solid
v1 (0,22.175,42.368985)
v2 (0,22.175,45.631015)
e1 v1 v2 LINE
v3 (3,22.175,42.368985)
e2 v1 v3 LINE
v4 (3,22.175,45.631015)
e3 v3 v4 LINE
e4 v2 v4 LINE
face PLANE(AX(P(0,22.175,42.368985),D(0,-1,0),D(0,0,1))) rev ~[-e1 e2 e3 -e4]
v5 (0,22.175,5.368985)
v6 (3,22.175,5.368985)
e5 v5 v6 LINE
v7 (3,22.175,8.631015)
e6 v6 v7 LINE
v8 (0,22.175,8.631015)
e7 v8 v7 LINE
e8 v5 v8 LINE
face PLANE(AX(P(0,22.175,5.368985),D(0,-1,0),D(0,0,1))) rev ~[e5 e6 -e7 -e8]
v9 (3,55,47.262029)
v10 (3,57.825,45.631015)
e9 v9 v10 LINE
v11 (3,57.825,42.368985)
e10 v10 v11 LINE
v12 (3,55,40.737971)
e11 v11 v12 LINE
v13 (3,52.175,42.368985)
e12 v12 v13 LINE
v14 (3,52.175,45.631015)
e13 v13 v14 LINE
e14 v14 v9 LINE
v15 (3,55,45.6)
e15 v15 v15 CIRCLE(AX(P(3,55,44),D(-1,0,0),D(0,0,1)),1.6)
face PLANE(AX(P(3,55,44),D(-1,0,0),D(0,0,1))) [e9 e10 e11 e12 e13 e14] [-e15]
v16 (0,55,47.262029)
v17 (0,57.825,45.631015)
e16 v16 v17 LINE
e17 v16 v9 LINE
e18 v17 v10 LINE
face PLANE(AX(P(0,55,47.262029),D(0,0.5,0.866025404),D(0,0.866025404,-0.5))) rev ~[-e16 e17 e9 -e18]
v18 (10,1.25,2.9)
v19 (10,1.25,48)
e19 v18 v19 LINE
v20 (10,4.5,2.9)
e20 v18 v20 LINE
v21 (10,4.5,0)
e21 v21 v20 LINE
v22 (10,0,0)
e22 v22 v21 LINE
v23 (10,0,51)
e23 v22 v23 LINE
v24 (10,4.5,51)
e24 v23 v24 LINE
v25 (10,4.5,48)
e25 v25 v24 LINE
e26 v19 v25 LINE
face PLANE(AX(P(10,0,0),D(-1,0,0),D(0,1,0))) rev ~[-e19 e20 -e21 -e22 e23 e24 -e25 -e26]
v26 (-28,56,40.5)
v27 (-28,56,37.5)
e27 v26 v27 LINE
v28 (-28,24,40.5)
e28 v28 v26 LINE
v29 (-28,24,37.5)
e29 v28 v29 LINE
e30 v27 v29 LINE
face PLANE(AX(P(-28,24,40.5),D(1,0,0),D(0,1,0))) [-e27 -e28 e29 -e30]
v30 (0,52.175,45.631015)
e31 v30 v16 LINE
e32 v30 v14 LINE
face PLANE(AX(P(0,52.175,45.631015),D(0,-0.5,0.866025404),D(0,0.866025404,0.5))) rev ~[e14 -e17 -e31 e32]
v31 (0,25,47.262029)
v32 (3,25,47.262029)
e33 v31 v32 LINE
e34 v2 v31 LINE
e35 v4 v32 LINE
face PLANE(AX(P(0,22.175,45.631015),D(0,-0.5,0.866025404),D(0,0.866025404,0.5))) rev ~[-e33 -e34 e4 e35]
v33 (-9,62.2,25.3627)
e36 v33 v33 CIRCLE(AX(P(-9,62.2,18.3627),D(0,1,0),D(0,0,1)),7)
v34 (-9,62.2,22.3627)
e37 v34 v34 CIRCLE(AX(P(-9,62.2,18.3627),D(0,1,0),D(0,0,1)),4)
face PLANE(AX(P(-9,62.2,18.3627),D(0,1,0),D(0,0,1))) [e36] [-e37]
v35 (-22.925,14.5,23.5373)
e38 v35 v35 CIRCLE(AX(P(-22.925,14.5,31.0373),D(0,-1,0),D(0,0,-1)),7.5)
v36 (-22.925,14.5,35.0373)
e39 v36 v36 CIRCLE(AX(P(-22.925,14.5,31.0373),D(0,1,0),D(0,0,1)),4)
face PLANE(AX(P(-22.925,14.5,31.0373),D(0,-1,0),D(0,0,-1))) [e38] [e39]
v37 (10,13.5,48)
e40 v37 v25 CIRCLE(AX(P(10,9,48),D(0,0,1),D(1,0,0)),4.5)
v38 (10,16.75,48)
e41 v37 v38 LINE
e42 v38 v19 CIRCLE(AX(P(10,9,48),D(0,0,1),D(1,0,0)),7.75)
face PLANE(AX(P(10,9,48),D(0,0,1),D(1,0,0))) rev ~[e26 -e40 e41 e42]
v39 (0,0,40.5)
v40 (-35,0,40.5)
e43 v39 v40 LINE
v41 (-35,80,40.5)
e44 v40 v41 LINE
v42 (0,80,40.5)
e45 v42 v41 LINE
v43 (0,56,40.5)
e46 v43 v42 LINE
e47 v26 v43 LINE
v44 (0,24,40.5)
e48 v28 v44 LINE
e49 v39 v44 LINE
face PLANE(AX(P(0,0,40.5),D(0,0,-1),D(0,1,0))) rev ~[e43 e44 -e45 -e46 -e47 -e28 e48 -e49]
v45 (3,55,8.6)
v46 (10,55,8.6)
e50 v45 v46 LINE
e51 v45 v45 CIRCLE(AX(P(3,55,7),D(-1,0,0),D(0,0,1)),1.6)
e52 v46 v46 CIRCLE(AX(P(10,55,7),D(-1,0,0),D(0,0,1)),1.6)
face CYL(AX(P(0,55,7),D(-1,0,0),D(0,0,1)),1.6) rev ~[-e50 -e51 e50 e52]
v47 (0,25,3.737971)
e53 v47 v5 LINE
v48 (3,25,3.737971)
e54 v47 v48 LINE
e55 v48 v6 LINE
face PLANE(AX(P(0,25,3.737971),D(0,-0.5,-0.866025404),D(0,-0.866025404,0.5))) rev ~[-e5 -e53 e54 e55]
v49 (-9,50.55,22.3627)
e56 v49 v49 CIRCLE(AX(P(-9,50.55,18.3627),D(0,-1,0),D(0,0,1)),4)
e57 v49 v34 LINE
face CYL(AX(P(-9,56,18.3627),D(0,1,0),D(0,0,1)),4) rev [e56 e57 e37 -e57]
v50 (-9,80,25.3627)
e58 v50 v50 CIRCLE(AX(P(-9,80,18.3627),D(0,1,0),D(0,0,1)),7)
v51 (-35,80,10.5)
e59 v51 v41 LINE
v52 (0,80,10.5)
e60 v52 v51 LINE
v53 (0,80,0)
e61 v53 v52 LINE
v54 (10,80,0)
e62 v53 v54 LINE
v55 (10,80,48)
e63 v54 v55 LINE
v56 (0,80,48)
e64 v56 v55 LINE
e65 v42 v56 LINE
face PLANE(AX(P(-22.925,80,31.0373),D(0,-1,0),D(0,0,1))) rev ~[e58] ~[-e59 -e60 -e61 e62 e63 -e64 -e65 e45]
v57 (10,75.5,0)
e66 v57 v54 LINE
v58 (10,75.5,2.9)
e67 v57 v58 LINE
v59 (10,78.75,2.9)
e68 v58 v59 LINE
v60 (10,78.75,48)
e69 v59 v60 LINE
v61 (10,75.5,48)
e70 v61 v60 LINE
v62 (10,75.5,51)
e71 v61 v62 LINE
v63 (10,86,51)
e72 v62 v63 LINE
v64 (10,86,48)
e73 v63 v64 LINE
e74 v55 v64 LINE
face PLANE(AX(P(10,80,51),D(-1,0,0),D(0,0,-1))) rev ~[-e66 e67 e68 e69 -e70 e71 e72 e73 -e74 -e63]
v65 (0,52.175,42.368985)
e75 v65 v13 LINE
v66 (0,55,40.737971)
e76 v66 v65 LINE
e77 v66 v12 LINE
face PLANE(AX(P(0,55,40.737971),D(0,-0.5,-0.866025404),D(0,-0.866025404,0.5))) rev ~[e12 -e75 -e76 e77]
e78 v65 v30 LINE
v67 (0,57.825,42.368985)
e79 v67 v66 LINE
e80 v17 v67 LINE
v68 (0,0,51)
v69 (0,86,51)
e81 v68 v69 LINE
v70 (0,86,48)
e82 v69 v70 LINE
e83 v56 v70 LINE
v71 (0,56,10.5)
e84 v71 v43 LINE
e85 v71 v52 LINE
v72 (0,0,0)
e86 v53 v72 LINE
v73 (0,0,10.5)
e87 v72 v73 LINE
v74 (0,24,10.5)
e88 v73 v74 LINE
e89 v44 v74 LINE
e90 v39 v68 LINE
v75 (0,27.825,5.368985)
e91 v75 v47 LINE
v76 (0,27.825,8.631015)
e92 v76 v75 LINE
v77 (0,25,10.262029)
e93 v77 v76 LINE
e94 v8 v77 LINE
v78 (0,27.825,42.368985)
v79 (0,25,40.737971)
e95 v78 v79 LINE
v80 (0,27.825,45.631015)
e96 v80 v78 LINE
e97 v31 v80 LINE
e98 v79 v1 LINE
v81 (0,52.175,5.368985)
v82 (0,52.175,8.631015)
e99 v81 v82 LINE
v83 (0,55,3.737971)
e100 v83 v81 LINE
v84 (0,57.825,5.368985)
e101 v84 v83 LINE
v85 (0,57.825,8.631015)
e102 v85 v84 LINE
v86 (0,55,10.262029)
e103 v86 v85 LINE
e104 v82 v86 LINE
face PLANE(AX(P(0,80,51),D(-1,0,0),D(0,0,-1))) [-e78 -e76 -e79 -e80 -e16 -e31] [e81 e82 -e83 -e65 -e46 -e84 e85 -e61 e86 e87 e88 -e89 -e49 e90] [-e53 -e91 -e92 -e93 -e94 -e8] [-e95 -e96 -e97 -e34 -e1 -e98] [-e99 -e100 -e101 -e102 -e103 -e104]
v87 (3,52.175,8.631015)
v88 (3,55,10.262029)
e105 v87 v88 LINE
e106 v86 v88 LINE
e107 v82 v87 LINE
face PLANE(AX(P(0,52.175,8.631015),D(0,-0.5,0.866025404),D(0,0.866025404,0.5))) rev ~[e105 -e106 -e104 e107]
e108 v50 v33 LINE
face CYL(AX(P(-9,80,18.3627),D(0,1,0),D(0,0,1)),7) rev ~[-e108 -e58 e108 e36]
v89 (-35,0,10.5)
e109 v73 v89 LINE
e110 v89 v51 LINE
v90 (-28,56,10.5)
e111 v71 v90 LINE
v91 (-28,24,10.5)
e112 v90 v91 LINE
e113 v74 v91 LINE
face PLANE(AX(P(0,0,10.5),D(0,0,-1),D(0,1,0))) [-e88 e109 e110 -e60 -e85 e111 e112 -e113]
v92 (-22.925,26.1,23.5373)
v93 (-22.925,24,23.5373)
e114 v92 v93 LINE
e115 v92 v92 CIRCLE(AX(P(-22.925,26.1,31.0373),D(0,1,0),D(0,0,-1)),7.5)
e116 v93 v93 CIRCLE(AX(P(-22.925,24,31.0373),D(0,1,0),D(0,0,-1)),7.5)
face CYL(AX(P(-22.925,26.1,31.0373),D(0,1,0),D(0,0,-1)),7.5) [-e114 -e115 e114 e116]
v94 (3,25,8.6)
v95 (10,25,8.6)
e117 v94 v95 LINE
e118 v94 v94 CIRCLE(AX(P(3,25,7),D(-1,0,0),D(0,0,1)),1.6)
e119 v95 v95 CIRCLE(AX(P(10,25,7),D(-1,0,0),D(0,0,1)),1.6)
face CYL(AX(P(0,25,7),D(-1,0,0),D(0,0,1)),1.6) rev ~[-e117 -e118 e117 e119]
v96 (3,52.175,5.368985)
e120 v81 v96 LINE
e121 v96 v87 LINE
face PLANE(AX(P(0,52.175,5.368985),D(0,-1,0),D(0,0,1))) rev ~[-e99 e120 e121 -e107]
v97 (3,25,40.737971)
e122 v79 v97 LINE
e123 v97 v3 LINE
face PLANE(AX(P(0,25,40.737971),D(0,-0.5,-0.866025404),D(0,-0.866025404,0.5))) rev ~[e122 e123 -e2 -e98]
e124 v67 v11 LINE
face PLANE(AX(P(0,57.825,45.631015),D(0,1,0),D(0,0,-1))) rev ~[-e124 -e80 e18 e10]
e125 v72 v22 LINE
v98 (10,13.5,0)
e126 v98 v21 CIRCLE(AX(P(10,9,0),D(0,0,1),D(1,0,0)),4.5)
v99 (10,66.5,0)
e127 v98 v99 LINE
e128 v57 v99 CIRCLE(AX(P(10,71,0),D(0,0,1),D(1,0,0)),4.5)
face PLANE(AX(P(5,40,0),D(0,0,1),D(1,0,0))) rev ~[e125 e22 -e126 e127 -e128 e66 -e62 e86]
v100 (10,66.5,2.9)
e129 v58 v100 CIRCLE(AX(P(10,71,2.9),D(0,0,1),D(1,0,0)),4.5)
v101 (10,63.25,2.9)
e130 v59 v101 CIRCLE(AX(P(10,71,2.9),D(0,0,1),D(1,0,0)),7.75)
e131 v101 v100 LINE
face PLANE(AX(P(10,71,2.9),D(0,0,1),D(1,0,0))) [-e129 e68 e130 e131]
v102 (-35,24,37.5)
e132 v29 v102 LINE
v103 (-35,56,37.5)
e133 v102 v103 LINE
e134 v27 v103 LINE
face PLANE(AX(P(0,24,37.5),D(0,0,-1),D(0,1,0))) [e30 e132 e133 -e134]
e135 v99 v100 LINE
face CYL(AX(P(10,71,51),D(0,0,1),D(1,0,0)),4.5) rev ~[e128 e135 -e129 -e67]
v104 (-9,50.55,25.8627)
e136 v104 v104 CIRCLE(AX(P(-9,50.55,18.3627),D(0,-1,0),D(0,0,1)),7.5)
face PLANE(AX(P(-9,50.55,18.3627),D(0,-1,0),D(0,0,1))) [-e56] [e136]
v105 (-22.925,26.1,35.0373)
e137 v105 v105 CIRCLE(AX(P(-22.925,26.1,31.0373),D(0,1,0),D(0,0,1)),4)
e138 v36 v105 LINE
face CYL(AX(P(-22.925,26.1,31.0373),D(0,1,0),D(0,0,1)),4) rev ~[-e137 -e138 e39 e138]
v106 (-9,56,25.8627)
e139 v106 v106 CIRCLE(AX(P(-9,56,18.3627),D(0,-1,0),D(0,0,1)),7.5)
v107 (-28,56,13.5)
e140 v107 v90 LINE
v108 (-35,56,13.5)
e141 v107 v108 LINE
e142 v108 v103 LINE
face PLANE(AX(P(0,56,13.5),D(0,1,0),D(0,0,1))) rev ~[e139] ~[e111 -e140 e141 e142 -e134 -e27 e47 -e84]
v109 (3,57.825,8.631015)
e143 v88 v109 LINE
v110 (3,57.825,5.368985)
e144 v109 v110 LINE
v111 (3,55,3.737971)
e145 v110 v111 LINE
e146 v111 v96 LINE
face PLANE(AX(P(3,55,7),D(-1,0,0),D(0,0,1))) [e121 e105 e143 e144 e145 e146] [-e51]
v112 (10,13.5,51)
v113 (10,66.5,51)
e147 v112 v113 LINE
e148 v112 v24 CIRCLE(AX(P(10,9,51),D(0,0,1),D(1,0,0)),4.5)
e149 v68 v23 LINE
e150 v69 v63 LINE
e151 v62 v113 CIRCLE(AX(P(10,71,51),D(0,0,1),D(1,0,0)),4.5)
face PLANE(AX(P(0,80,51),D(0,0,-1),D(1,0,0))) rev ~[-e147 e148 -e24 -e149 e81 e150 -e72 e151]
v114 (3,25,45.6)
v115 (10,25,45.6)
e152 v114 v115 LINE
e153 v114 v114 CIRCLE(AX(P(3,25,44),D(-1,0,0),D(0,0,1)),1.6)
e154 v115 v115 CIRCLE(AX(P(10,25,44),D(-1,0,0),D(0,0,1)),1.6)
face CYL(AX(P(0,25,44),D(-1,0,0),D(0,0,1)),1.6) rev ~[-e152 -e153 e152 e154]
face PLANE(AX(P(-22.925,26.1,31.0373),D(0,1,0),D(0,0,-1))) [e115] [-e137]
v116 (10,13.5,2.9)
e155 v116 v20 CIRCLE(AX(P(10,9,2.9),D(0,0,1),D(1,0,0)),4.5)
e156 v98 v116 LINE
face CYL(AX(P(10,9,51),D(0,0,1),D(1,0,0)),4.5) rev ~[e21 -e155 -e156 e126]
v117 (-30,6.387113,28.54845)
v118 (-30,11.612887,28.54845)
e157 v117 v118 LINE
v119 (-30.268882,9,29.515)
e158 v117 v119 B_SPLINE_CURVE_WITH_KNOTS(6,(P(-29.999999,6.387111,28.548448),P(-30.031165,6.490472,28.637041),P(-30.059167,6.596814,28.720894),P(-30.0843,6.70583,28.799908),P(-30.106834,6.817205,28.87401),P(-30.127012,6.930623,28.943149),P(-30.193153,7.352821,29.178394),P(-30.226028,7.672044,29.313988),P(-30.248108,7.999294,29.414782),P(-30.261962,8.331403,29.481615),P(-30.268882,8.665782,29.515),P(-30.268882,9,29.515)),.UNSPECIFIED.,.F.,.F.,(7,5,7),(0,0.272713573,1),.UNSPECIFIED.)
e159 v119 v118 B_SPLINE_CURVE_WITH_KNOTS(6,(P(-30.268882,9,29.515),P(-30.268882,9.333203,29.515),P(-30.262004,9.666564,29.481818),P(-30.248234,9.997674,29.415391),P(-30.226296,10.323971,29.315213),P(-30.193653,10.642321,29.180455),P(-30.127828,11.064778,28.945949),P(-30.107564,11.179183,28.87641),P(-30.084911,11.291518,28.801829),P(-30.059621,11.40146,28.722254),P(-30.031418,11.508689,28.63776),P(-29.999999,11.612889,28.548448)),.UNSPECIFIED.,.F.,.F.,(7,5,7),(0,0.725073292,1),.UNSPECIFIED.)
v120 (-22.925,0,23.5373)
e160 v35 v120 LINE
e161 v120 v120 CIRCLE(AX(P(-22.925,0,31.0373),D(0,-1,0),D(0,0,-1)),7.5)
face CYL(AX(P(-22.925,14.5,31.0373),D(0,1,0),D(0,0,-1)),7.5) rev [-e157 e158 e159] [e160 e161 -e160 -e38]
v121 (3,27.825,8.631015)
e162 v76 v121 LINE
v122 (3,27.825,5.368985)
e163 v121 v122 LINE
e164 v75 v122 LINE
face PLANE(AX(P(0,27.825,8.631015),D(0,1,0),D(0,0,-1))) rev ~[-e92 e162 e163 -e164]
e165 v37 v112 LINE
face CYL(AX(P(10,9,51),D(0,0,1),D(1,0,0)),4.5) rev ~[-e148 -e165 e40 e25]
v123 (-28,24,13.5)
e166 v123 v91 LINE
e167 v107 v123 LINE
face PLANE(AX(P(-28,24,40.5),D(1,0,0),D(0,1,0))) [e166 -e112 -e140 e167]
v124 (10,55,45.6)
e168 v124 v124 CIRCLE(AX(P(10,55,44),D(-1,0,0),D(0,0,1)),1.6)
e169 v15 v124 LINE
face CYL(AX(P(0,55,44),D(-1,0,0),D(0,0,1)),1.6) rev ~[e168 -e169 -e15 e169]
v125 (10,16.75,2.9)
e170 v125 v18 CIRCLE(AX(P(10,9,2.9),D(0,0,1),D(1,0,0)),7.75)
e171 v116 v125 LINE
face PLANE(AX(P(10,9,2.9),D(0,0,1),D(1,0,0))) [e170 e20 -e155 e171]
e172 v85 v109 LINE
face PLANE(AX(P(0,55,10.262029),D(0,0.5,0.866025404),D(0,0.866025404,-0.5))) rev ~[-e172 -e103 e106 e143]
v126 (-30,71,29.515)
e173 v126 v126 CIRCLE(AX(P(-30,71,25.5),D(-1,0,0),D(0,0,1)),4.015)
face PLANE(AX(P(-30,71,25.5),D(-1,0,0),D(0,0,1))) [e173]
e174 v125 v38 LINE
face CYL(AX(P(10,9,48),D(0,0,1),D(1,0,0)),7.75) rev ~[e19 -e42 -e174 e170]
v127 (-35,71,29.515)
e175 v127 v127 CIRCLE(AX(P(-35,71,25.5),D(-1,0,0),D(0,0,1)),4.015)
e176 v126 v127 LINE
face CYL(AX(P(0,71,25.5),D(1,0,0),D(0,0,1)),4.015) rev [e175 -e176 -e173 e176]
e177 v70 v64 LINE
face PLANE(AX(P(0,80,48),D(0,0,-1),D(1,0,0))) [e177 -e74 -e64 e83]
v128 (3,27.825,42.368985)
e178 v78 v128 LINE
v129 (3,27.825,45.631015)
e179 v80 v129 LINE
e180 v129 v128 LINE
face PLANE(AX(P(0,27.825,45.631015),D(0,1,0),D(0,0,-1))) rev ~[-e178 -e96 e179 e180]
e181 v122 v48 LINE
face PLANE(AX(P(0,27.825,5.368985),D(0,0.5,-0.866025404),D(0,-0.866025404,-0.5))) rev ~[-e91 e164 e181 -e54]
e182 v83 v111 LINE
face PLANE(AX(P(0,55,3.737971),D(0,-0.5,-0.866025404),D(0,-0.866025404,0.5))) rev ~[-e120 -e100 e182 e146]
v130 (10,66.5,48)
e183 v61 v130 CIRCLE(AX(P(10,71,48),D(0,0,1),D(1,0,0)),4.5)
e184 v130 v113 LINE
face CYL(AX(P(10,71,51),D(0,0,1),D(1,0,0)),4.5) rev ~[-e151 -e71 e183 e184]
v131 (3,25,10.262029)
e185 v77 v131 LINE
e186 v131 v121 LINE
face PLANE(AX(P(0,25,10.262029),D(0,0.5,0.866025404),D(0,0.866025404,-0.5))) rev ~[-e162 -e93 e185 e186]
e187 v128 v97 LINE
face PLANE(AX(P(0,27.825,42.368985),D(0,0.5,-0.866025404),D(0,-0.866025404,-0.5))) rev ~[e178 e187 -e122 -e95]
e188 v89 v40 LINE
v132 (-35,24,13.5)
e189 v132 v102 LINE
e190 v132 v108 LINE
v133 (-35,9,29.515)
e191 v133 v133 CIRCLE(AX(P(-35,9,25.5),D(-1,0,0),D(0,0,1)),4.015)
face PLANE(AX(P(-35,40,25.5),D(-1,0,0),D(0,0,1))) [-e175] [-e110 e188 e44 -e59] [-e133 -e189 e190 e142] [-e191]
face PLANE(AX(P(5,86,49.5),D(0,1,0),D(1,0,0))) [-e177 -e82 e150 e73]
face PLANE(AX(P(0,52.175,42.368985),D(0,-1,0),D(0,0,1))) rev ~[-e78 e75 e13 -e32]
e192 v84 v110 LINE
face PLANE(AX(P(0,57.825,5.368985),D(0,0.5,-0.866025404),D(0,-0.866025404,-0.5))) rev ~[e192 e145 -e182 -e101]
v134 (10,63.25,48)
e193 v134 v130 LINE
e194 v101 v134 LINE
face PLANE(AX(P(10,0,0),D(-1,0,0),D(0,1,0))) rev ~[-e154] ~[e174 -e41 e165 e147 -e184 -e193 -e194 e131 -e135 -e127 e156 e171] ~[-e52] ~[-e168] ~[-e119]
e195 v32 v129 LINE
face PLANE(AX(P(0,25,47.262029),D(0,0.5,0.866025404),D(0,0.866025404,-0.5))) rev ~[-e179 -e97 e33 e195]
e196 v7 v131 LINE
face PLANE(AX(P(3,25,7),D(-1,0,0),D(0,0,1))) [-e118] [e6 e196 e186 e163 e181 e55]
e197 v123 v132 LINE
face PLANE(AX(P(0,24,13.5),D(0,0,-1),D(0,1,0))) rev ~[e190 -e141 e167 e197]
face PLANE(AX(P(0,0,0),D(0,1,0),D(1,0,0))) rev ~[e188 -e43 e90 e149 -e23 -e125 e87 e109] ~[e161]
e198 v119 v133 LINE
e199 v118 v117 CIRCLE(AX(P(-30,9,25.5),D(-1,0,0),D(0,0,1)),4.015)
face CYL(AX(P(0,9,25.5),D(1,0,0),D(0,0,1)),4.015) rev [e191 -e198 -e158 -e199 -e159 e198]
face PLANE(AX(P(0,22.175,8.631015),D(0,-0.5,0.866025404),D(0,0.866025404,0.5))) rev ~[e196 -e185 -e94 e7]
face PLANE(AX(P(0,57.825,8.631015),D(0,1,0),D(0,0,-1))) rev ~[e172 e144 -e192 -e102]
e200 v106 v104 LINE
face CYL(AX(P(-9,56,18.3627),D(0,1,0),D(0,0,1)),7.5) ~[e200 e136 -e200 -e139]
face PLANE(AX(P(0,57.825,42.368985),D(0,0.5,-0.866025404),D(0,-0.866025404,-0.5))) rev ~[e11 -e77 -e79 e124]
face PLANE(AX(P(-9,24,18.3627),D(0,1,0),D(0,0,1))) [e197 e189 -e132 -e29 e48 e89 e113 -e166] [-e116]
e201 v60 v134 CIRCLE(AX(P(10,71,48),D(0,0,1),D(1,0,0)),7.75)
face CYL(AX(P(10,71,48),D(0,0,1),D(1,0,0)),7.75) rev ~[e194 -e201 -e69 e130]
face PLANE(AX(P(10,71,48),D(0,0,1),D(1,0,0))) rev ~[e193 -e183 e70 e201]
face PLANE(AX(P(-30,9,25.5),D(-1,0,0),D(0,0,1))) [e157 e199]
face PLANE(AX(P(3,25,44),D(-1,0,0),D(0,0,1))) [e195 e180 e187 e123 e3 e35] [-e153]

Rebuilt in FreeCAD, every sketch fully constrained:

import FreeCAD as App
import Part
import Sketcher
Q = App.Units.Quantity

doc = App.newDocument("Part")
body = doc.addObject("PartDesign::Body", "Body")

# Sketch on XY plane
sketch1 = doc.addObject("Sketcher::SketchObject", "Sketch")
body.addObject(sketch1)
sketch1.AttachmentSupport = (doc.XY_Plane, [""])
sketch1.MapMode = "FlatFace"
sketch1.addGeometry([
    Part.LineSegment(App.Vector(0, 80, 0), App.Vector(0, 0, 0)),
    Part.LineSegment(App.Vector(0, 0, 0), App.Vector(10, 0, 0)),
    Part.LineSegment(App.Vector(10, 0, 0), App.Vector(10, 80, 0)),
    Part.LineSegment(App.Vector(10, 80, 0), App.Vector(0, 80, 0)),
], False)
sketch1.addConstraint([
    Sketcher.Constraint("Coincident", 0, 2, 1, 1),
    Sketcher.Constraint("Coincident", 1, 2, 2, 1),
    Sketcher.Constraint("Coincident", 2, 2, 3, 1),
    Sketcher.Constraint("Coincident", 3, 2, 0, 1),
    Sketcher.Constraint("Vertical", 0),
    Sketcher.Constraint("Horizontal", 1),
    Sketcher.Constraint("Vertical", 2),
    Sketcher.Constraint("Horizontal", 3),
    Sketcher.Constraint("Coincident", 0, 2, -1, 1),
    Sketcher.Constraint("DistanceX", 1, 1, 1, 2, Q("10 mm")),
    Sketcher.Constraint("DistanceY", 0, 2, 0, 1, Q("80 mm")),
])
pad1 = doc.addObject("PartDesign::Pad", "Pad")
body.addObject(pad1)
pad1.Profile = sketch1
pad1.Length = 51

# Sketch on XY plane
sketch2 = doc.addObject("Sketcher::SketchObject", "Sketch001")
body.addObject(sketch2)
sketch2.AttachmentSupport = (doc.XY_Plane, [""])
sketch2.MapMode = "FlatFace"
sketch2.AttachmentOffset = App.Placement(App.Vector(0, 0, 48), App.Rotation())
sketch2.addGeometry([
    Part.Circle(App.Vector(10, 9, 0), App.Vector(0, 0, 1), 8),
    Part.Circle(App.Vector(10, 71, 0), App.Vector(0, 0, 1), 8),
], False)
sketch2.addConstraint([
    Sketcher.Constraint("Equal", 0, 1),
    Sketcher.Constraint("Vertical", 0, 3, 1, 3),
    Sketcher.Constraint("Diameter", 0, Q("15.5 mm")),
    Sketcher.Constraint("DistanceX", -1, 1, 0, 3, Q("10 mm")),
    Sketcher.Constraint("DistanceY", -1, 1, 0, 3, Q("9 mm")),
    Sketcher.Constraint("DistanceY", -1, 1, 1, 3, Q("71 mm")),
])
pocket1 = doc.addObject("PartDesign::Pocket", "Pocket")
body.addObject(pocket1)
pocket1.Profile = sketch2
pocket1.Length = 45.1

# Sketch on XY plane
sketch3 = doc.addObject("Sketcher::SketchObject", "Sketch002")
body.addObject(sketch3)
sketch3.AttachmentSupport = (doc.XY_Plane, [""])
sketch3.MapMode = "FlatFace"
sketch3.AttachmentOffset = App.Placement(App.Vector(0, 0, 51), App.Rotation())
sketch3.addGeometry([
    Part.Circle(App.Vector(10, 71, 0), App.Vector(0, 0, 1), 4.5),
    Part.Circle(App.Vector(10, 9, 0), App.Vector(0, 0, 1), 4.5),
], False)
sketch3.addConstraint([
    Sketcher.Constraint("Equal", 0, 1),
    Sketcher.Constraint("Vertical", 0, 3, 1, 3),
    Sketcher.Constraint("Diameter", 0, Q("9 mm")),
    Sketcher.Constraint("DistanceX", -1, 1, 0, 3, Q("10 mm")),
    Sketcher.Constraint("DistanceY", -1, 1, 0, 3, Q("71 mm")),
    Sketcher.Constraint("DistanceY", -1, 1, 1, 3, Q("9 mm")),
])
pocket2 = doc.addObject("PartDesign::Pocket", "Pocket001")
body.addObject(pocket2)
pocket2.Profile = sketch3
pocket2.Type = "ThroughAll"

# Sketch on YZ plane
sketch4 = doc.addObject("Sketcher::SketchObject", "Sketch003")
body.addObject(sketch4)
sketch4.AttachmentSupport = (doc.YZ_Plane, [""])
sketch4.MapMode = "FlatFace"
sketch4.addGeometry([
    Part.LineSegment(App.Vector(80, 10.5, 0), App.Vector(0, 10.5, 0)),  # 0
    Part.LineSegment(App.Vector(0, 10.5, 0), App.Vector(0, 40.5, 0)),  # 1
    Part.LineSegment(App.Vector(0, 40.5, 0), App.Vector(80, 40.5, 0)),  # 2
    Part.LineSegment(App.Vector(80, 40.5, 0), App.Vector(80, 10.5, 0)),  # 3
    Part.Circle(App.Vector(9, 25.5, 0), App.Vector(0, 0, 1), 4),  # 4
    Part.Circle(App.Vector(71, 25.5, 0), App.Vector(0, 0, 1), 4),  # 5
], False)
sketch4.addConstraint([
    Sketcher.Constraint("Coincident", 0, 2, 1, 1),
    Sketcher.Constraint("Coincident", 1, 2, 2, 1),
    Sketcher.Constraint("Coincident", 2, 2, 3, 1),
    Sketcher.Constraint("Coincident", 3, 2, 0, 1),
    Sketcher.Constraint("Horizontal", 0),
    Sketcher.Constraint("Vertical", 1),
    Sketcher.Constraint("Horizontal", 2),
    Sketcher.Constraint("Vertical", 3),
    Sketcher.Constraint("Equal", 4, 5),
    Sketcher.Constraint("PointOnObject", 0, 2, -2),
    Sketcher.Constraint("Horizontal", 4, 3, 5, 3),
    Sketcher.Constraint("Diameter", 4, Q("8.03 mm")),
    Sketcher.Constraint("DistanceX", 0, 2, 0, 1, Q("80 mm")),
    Sketcher.Constraint("DistanceY", 1, 1, 1, 2, Q("30 mm")),
    Sketcher.Constraint("DistanceX", -1, 1, 4, 3, Q("9 mm")),
    Sketcher.Constraint("DistanceX", -1, 1, 5, 3, Q("71 mm")),
    Sketcher.Constraint("DistanceY", 0, 2, 4, 3, Q("15 mm")),
    Sketcher.Constraint("DistanceY", -1, 1, 4, 3, Q("25.5 mm")),
])
pad2 = doc.addObject("PartDesign::Pad", "Pad001")
body.addObject(pad2)
pad2.Profile = sketch4
pad2.Length = 35
pad2.Reversed = True

# Sketch on YZ plane
sketch5 = doc.addObject("Sketcher::SketchObject", "Sketch004")
body.addObject(sketch5)
sketch5.AttachmentSupport = (doc.YZ_Plane, [""])
sketch5.MapMode = "FlatFace"
sketch5.addGeometry([
    Part.Circle(App.Vector(71, 25.5, 0), App.Vector(0, 0, 1), 4),
    Part.Circle(App.Vector(9, 25.5, 0), App.Vector(0, 0, 1), 4),
], False)
sketch5.addConstraint([
    Sketcher.Constraint("Equal", 0, 1),
    Sketcher.Constraint("Horizontal", 0, 3, 1, 3),
    Sketcher.Constraint("Diameter", 0, Q("8.03 mm")),
    Sketcher.Constraint("DistanceX", -1, 1, 0, 3, Q("71 mm")),
    Sketcher.Constraint("DistanceX", -1, 1, 1, 3, Q("9 mm")),
    Sketcher.Constraint("DistanceY", -1, 1, 0, 3, Q("25.5 mm")),
])
pad3 = doc.addObject("PartDesign::Pad", "Pad002")
body.addObject(pad3)
pad3.Profile = sketch5
pad3.Length = 30
pad3.Reversed = True

# Sketch on YZ plane
sketch6 = doc.addObject("Sketcher::SketchObject", "Sketch005")
body.addObject(sketch6)
sketch6.AttachmentSupport = (doc.YZ_Plane, [""])
sketch6.MapMode = "FlatFace"
sketch6.addGeometry([
    Part.LineSegment(App.Vector(56, 14, 0), App.Vector(24, 14, 0)),
    Part.LineSegment(App.Vector(24, 14, 0), App.Vector(24, 38, 0)),
    Part.LineSegment(App.Vector(24, 38, 0), App.Vector(56, 38, 0)),
    Part.LineSegment(App.Vector(56, 38, 0), App.Vector(56, 14, 0)),
], False)
sketch6.addConstraint([
    Sketcher.Constraint("Coincident", 0, 2, 1, 1),
    Sketcher.Constraint("Coincident", 1, 2, 2, 1),
    Sketcher.Constraint("Coincident", 2, 2, 3, 1),
    Sketcher.Constraint("Coincident", 3, 2, 0, 1),
    Sketcher.Constraint("Horizontal", 0),
    Sketcher.Constraint("Vertical", 1),
    Sketcher.Constraint("Horizontal", 2),
    Sketcher.Constraint("Vertical", 3),
    Sketcher.Constraint("DistanceX", 0, 2, 0, 1, Q("32 mm")),
    Sketcher.Constraint("DistanceY", 1, 1, 1, 2, Q("24 mm")),
    Sketcher.Constraint("DistanceX", -1, 1, 0, 2, Q("24 mm")),
    Sketcher.Constraint("DistanceY", -1, 1, 0, 2, Q("13.5 mm")),
])
pocket3 = doc.addObject("PartDesign::Pocket", "Pocket002")
body.addObject(pocket3)
pocket3.Profile = sketch6
pocket3.Length = 35

# Sketch on XY plane
sketch7 = doc.addObject("Sketcher::SketchObject", "Sketch006")
body.addObject(sketch7)
sketch7.AttachmentSupport = (doc.XY_Plane, [""])
sketch7.MapMode = "FlatFace"
sketch7.AttachmentOffset = App.Placement(App.Vector(0, 0, 40.5), App.Rotation())
sketch7.addGeometry([
    Part.LineSegment(App.Vector(-28, 56, 0), App.Vector(-28, 24, 0)),
    Part.LineSegment(App.Vector(-28, 24, 0), App.Vector(0, 24, 0)),
    Part.LineSegment(App.Vector(0, 24, 0), App.Vector(0, 56, 0)),
    Part.LineSegment(App.Vector(0, 56, 0), App.Vector(-28, 56, 0)),
], False)
sketch7.addConstraint([
    Sketcher.Constraint("Coincident", 0, 2, 1, 1),
    Sketcher.Constraint("Coincident", 1, 2, 2, 1),
    Sketcher.Constraint("Coincident", 2, 2, 3, 1),
    Sketcher.Constraint("Coincident", 3, 2, 0, 1),
    Sketcher.Constraint("Vertical", 0),
    Sketcher.Constraint("Horizontal", 1),
    Sketcher.Constraint("Vertical", 2),
    Sketcher.Constraint("Horizontal", 3),
    Sketcher.Constraint("PointOnObject", 1, 2, -2),
    Sketcher.Constraint("DistanceX", 1, 1, 1, 2, Q("28 mm")),
    Sketcher.Constraint("DistanceY", 0, 2, 0, 1, Q("32 mm")),
    Sketcher.Constraint("DistanceY", -1, 1, 0, 2, Q("24 mm")),
])
pocket4 = doc.addObject("PartDesign::Pocket", "Pocket003")
body.addObject(pocket4)
pocket4.Profile = sketch7
pocket4.Type = "ThroughAll"

# Sketch on XZ plane
sketch8 = doc.addObject("Sketcher::SketchObject", "Sketch007")
body.addObject(sketch8)
sketch8.AttachmentSupport = (doc.XZ_Plane, [""])
sketch8.MapMode = "FlatFace"
sketch8.AttachmentOffset = App.Placement(App.Vector(0, 0, -80), App.Rotation())
sketch8.addGeometry([
    Part.LineSegment(App.Vector(0, 48, 0), App.Vector(0, 51, 0)),
    Part.LineSegment(App.Vector(0, 51, 0), App.Vector(10, 51, 0)),
    Part.LineSegment(App.Vector(10, 51, 0), App.Vector(10, 48, 0)),
    Part.LineSegment(App.Vector(10, 48, 0), App.Vector(0, 48, 0)),
], False)
sketch8.addConstraint([
    Sketcher.Constraint("Coincident", 0, 2, 1, 1),
    Sketcher.Constraint("Coincident", 1, 2, 2, 1),
    Sketcher.Constraint("Coincident", 2, 2, 3, 1),
    Sketcher.Constraint("Coincident", 3, 2, 0, 1),
    Sketcher.Constraint("Vertical", 0),
    Sketcher.Constraint("Horizontal", 1),
    Sketcher.Constraint("Vertical", 2),
    Sketcher.Constraint("Horizontal", 3),
    Sketcher.Constraint("PointOnObject", 0, 2, -2),
    Sketcher.Constraint("DistanceX", 1, 1, 1, 2, Q("10 mm")),
    Sketcher.Constraint("DistanceY", 0, 1, 0, 2, Q("3 mm")),
    Sketcher.Constraint("DistanceY", -1, 1, 0, 2, Q("51 mm")),
])
pad4 = doc.addObject("PartDesign::Pad", "Pad003")
body.addObject(pad4)
pad4.Profile = sketch8
pad4.Length = 6
pad4.Reversed = True

# Sketch on YZ plane
sketch9 = doc.addObject("Sketcher::SketchObject", "Sketch008")
body.addObject(sketch9)
sketch9.AttachmentSupport = (doc.YZ_Plane, [""])
sketch9.MapMode = "FlatFace"
sketch9.addGeometry([
    Part.LineSegment(App.Vector(55, 10.3, 0), App.Vector(57.8, 8.6, 0)),  # 0
    Part.LineSegment(App.Vector(57.8, 8.6, 0), App.Vector(57.8, 5.4, 0)),  # 1
    Part.LineSegment(App.Vector(57.8, 5.4, 0), App.Vector(55, 3.7, 0)),  # 2
    Part.LineSegment(App.Vector(55, 3.7, 0), App.Vector(52.2, 5.4, 0)),  # 3
    Part.LineSegment(App.Vector(52.2, 5.4, 0), App.Vector(52.2, 8.6, 0)),  # 4
    Part.LineSegment(App.Vector(52.2, 8.6, 0), App.Vector(55, 10.3, 0)),  # 5
    Part.Circle(App.Vector(55, 7, 0), App.Vector(0, 0, 1), 1.6),  # 6
    Part.LineSegment(App.Vector(55, 47.3, 0), App.Vector(57.8, 45.6, 0)),  # 7
    Part.LineSegment(App.Vector(57.8, 45.6, 0), App.Vector(57.8, 42.4, 0)),  # 8
    Part.LineSegment(App.Vector(57.8, 42.4, 0), App.Vector(55, 40.7, 0)),  # 9
    Part.LineSegment(App.Vector(55, 40.7, 0), App.Vector(52.2, 42.4, 0)),  # 10
    Part.LineSegment(App.Vector(52.2, 42.4, 0), App.Vector(52.2, 45.6, 0)),  # 11
    Part.LineSegment(App.Vector(52.2, 45.6, 0), App.Vector(55, 47.3, 0)),  # 12
    Part.Circle(App.Vector(55, 44, 0), App.Vector(0, 0, 1), 1.6),  # 13
    Part.LineSegment(App.Vector(25, 47.3, 0), App.Vector(27.8, 45.6, 0)),  # 14
    Part.LineSegment(App.Vector(27.8, 45.6, 0), App.Vector(27.8, 42.4, 0)),  # 15
    Part.LineSegment(App.Vector(27.8, 42.4, 0), App.Vector(25, 40.7, 0)),  # 16
    Part.LineSegment(App.Vector(25, 40.7, 0), App.Vector(22.2, 42.4, 0)),  # 17
    Part.LineSegment(App.Vector(22.2, 42.4, 0), App.Vector(22.2, 45.6, 0)),  # 18
    Part.LineSegment(App.Vector(22.2, 45.6, 0), App.Vector(25, 47.3, 0)),  # 19
    Part.Circle(App.Vector(25, 44, 0), App.Vector(0, 0, 1), 1.6),  # 20
    Part.LineSegment(App.Vector(25, 10.3, 0), App.Vector(27.8, 8.6, 0)),  # 21
    Part.LineSegment(App.Vector(27.8, 8.6, 0), App.Vector(27.8, 5.4, 0)),  # 22
    Part.LineSegment(App.Vector(27.8, 5.4, 0), App.Vector(25, 3.7, 0)),  # 23
    Part.LineSegment(App.Vector(25, 3.7, 0), App.Vector(22.2, 5.4, 0)),  # 24
    Part.LineSegment(App.Vector(22.2, 5.4, 0), App.Vector(22.2, 8.6, 0)),  # 25
    Part.LineSegment(App.Vector(22.2, 8.6, 0), App.Vector(25, 10.3, 0)),  # 26
    Part.Circle(App.Vector(25, 7, 0), App.Vector(0, 0, 1), 1.6),  # 27
], False)
sketch9.addConstraint([
    Sketcher.Constraint("Coincident", 0, 2, 1, 1),
    Sketcher.Constraint("Coincident", 1, 2, 2, 1),
    Sketcher.Constraint("Coincident", 2, 2, 3, 1),
    Sketcher.Constraint("Coincident", 3, 2, 4, 1),
    Sketcher.Constraint("Coincident", 4, 2, 5, 1),
    Sketcher.Constraint("Coincident", 5, 2, 0, 1),
    Sketcher.Constraint("Coincident", 7, 2, 8, 1),
    Sketcher.Constraint("Coincident", 8, 2, 9, 1),
    Sketcher.Constraint("Coincident", 9, 2, 10, 1),
    Sketcher.Constraint("Coincident", 10, 2, 11, 1),
    Sketcher.Constraint("Coincident", 11, 2, 12, 1),
    Sketcher.Constraint("Coincident", 12, 2, 7, 1),
    Sketcher.Constraint("Coincident", 14, 2, 15, 1),
    Sketcher.Constraint("Coincident", 15, 2, 16, 1),
    Sketcher.Constraint("Coincident", 16, 2, 17, 1),
    Sketcher.Constraint("Coincident", 17, 2, 18, 1),
    Sketcher.Constraint("Coincident", 18, 2, 19, 1),
    Sketcher.Constraint("Coincident", 19, 2, 14, 1),
    Sketcher.Constraint("Coincident", 21, 2, 22, 1),
    Sketcher.Constraint("Coincident", 22, 2, 23, 1),
    Sketcher.Constraint("Coincident", 23, 2, 24, 1),
    Sketcher.Constraint("Coincident", 24, 2, 25, 1),
    Sketcher.Constraint("Coincident", 25, 2, 26, 1),
    Sketcher.Constraint("Coincident", 26, 2, 21, 1),
    Sketcher.Constraint("Vertical", 1),
    Sketcher.Constraint("Vertical", 4),
    Sketcher.Constraint("Vertical", 8),
    Sketcher.Constraint("Vertical", 11),
    Sketcher.Constraint("Vertical", 15),
    Sketcher.Constraint("Vertical", 18),
    Sketcher.Constraint("Vertical", 22),
    Sketcher.Constraint("Vertical", 25),
    Sketcher.Constraint("Equal", 6, 13),
    Sketcher.Constraint("Equal", 13, 20),
    Sketcher.Constraint("Equal", 20, 27),
    Sketcher.Constraint("Parallel", 0, 3),
    Sketcher.Constraint("Parallel", 2, 5),
    Sketcher.Constraint("Parallel", 3, 7),
    Sketcher.Constraint("Parallel", 5, 9),
    Sketcher.Constraint("Parallel", 7, 10),
    Sketcher.Constraint("Parallel", 9, 12),
    Sketcher.Constraint("Parallel", 10, 14),
    Sketcher.Constraint("Parallel", 12, 16),
    Sketcher.Constraint("Parallel", 14, 17),
    Sketcher.Constraint("Parallel", 16, 19),
    Sketcher.Constraint("Parallel", 17, 21),
    Sketcher.Constraint("Parallel", 19, 23),
    Sketcher.Constraint("Parallel", 21, 24),
    Sketcher.Constraint("Parallel", 23, 26),
    Sketcher.Constraint("Horizontal", 13, 3, 20, 3),
    Sketcher.Constraint("Horizontal", 6, 3, 27, 3),
    Sketcher.Constraint("Horizontal", 1, 2, 3, 2),
    Sketcher.Constraint("Horizontal", 0, 2, 4, 2),
    Sketcher.Constraint("Horizontal", 8, 2, 10, 2),
    Sketcher.Constraint("Horizontal", 7, 2, 11, 2),
    Sketcher.Constraint("Horizontal", 11, 2, 14, 2),
    Sketcher.Constraint("Horizontal", 10, 2, 15, 2),
    Sketcher.Constraint("Horizontal", 9, 2, 16, 2),
    Sketcher.Constraint("Horizontal", 15, 2, 17, 2),
    Sketcher.Constraint("Horizontal", 14, 2, 18, 2),
    Sketcher.Constraint("Horizontal", 4, 2, 21, 2),
    Sketcher.Constraint("Horizontal", 3, 2, 22, 2),
    Sketcher.Constraint("Horizontal", 2, 2, 23, 2),
    Sketcher.Constraint("Horizontal", 22, 2, 24, 2),
    Sketcher.Constraint("Horizontal", 21, 2, 25, 2),
    Sketcher.Constraint("Vertical", 6, 3, 13, 3),
    Sketcher.Constraint("Vertical", 20, 3, 27, 3),
    Sketcher.Constraint("Vertical", 13, 3, 2, 2),
    Sketcher.Constraint("Vertical", 2, 2, 5, 2),
    Sketcher.Constraint("Vertical", 1, 2, 7, 2),
    Sketcher.Constraint("Vertical", 5, 2, 9, 2),
    Sketcher.Constraint("Vertical", 27, 3, 16, 2),
    Sketcher.Constraint("Vertical", 15, 2, 21, 2),
    Sketcher.Constraint("Equal", 4, 8),
    Sketcher.Constraint("Diameter", 6, Q("3.2 mm")),
    Sketcher.Constraint("Angle", 0, Q("-30 deg")),
    Sketcher.Constraint("DistanceX", -1, 1, 6, 3, Q("55 mm")),
    Sketcher.Constraint("DistanceY", -1, 1, 6, 3, Q("7 mm")),
    Sketcher.Constraint("DistanceY", -1, 1, 13, 3, Q("44 mm")),
    Sketcher.Constraint("DistanceX", -1, 1, 20, 3, Q("25 mm")),
    Sketcher.Constraint("DistanceY", 0, 2, 7, 2, Q("37 mm")),
    Sketcher.Constraint("DistanceX", 3, 2, 1, 2, Q("5.65 mm")),
    Sketcher.Constraint("DistanceY", 1, 2, 1, 1, Q("3.262029 mm")),
    Sketcher.Constraint("DistanceY", -1, 1, 2, 2, Q("3.737971 mm")),
])
pocket5 = doc.addObject("PartDesign::Pocket", "Pocket004")
body.addObject(pocket5)
pocket5.Profile = sketch9
pocket5.Length = 3
pocket5.Reversed = True

# Sketch on YZ plane
sketch10 = doc.addObject("Sketcher::SketchObject", "Sketch009")
body.addObject(sketch10)
sketch10.AttachmentSupport = (doc.YZ_Plane, [""])
sketch10.MapMode = "FlatFace"
sketch10.addGeometry([
    Part.Circle(App.Vector(55, 7, 0), App.Vector(0, 0, 1), 1.6),
    Part.Circle(App.Vector(55, 44, 0), App.Vector(0, 0, 1), 1.6),
    Part.Circle(App.Vector(25, 44, 0), App.Vector(0, 0, 1), 1.6),
    Part.Circle(App.Vector(25, 7, 0), App.Vector(0, 0, 1), 1.6),
], False)
sketch10.addConstraint([
    Sketcher.Constraint("Equal", 0, 1),
    Sketcher.Constraint("Equal", 1, 2),
    Sketcher.Constraint("Equal", 2, 3),
    Sketcher.Constraint("Horizontal", 1, 3, 2, 3),
    Sketcher.Constraint("Horizontal", 0, 3, 3, 3),
    Sketcher.Constraint("Vertical", 0, 3, 1, 3),
    Sketcher.Constraint("Vertical", 2, 3, 3, 3),
    Sketcher.Constraint("Diameter", 0, Q("3.2 mm")),
    Sketcher.Constraint("DistanceX", -1, 1, 0, 3, Q("55 mm")),
    Sketcher.Constraint("DistanceY", -1, 1, 0, 3, Q("7 mm")),
    Sketcher.Constraint("DistanceY", -1, 1, 1, 3, Q("44 mm")),
    Sketcher.Constraint("DistanceX", -1, 1, 2, 3, Q("25 mm")),
])
pocket6 = doc.addObject("PartDesign::Pocket", "Pocket005")
body.addObject(pocket6)
pocket6.Profile = sketch10
pocket6.Type = "ThroughAll"
pocket6.Reversed = True

# Sketch on XZ plane
sketch11 = doc.addObject("Sketcher::SketchObject", "Sketch010")
body.addObject(sketch11)
sketch11.AttachmentSupport = (doc.XZ_Plane, [""])
sketch11.MapMode = "FlatFace"
sketch11.AttachmentOffset = App.Placement(App.Vector(0, 0, -80), App.Rotation())
sketch11.addGeometry([
    Part.Circle(App.Vector(-9, 18.4, 0), App.Vector(0, 0, 1), 4),
    Part.Circle(App.Vector(-22.9, 31, 0), App.Vector(0, 0, 1), 4),
], False)
sketch11.addConstraint([
    Sketcher.Constraint("Equal", 0, 1),
    Sketcher.Constraint("Diameter", 0, Q("8 mm")),
    Sketcher.Constraint("DistanceX", 0, 3, -1, 1, Q("9 mm")),
    Sketcher.Constraint("DistanceX", 1, 3, -1, 1, Q("22.925 mm")),
    Sketcher.Constraint("DistanceY", -1, 1, 0, 3, Q("18.3627 mm")),
    Sketcher.Constraint("DistanceY", -1, 1, 1, 3, Q("31.0373 mm")),
])
pocket7 = doc.addObject("PartDesign::Pocket", "Pocket006")
body.addObject(pocket7)
pocket7.Profile = sketch11
pocket7.Type = "ThroughAll"
pocket7.Reversed = True

# Sketch on XZ plane
sketch12 = doc.addObject("Sketcher::SketchObject", "Sketch011")
body.addObject(sketch12)
sketch12.AttachmentSupport = (doc.XZ_Plane, [""])
sketch12.MapMode = "FlatFace"
sketch12.AttachmentOffset = App.Placement(App.Vector(0, 0, -26.1), App.Rotation())
sketch12.addGeometry([
    Part.Circle(App.Vector(-22.9, 31, 0), App.Vector(0, 0, 1), 7.5),
    Part.Circle(App.Vector(-22.9, 31, 0), App.Vector(0, 0, 1), 4),
], False)
sketch12.addConstraint([
    Sketcher.Constraint("Coincident", 1, 3, 0, 3),
    Sketcher.Constraint("Diameter", 0, Q("15 mm")),
    Sketcher.Constraint("Diameter", 1, Q("8 mm")),
    Sketcher.Constraint("DistanceX", 0, 3, -1, 1, Q("22.925 mm")),
    Sketcher.Constraint("DistanceY", -1, 1, 0, 3, Q("31.0373 mm")),
])
pad5 = doc.addObject("PartDesign::Pad", "Pad004")
body.addObject(pad5)
pad5.Profile = sketch12
pad5.Length = 2.1

# Sketch on XZ plane
sketch13 = doc.addObject("Sketcher::SketchObject", "Sketch012")
body.addObject(sketch13)
sketch13.AttachmentSupport = (doc.XZ_Plane, [""])
sketch13.MapMode = "FlatFace"
sketch13.AttachmentOffset = App.Placement(App.Vector(0, 0, -14.5), App.Rotation())
sketch13.addGeometry(Part.Circle(App.Vector(-23, 31, 0), App.Vector(0, 0, 1), 8), False)
sketch13.addConstraint([
    Sketcher.Constraint("Diameter", 0, Q("15 mm")),
    Sketcher.Constraint("DistanceX", 0, 3, -1, 1, Q("22.925 mm")),
    Sketcher.Constraint("DistanceY", -1, 1, 0, 3, Q("31.0373 mm")),
])
pocket8 = doc.addObject("PartDesign::Pocket", "Pocket007")
body.addObject(pocket8)
pocket8.Profile = sketch13
pocket8.Length = 14.5
pocket8.Reversed = True

# Sketch on XZ plane
sketch14 = doc.addObject("Sketcher::SketchObject", "Sketch013")
body.addObject(sketch14)
sketch14.AttachmentSupport = (doc.XZ_Plane, [""])
sketch14.MapMode = "FlatFace"
sketch14.AttachmentOffset = App.Placement(App.Vector(0, 0, -56), App.Rotation())
sketch14.addGeometry([
    Part.Circle(App.Vector(-9, 18.4, 0), App.Vector(0, 0, 1), 7.5),
    Part.Circle(App.Vector(-9, 18.4, 0), App.Vector(0, 0, 1), 4),
], False)
sketch14.addConstraint([
    Sketcher.Constraint("Coincident", 1, 3, 0, 3),
    Sketcher.Constraint("Diameter", 0, Q("15 mm")),
    Sketcher.Constraint("Diameter", 1, Q("8 mm")),
    Sketcher.Constraint("DistanceX", 0, 3, -1, 1, Q("9 mm")),
    Sketcher.Constraint("DistanceY", -1, 1, 0, 3, Q("18.3627 mm")),
])
pad6 = doc.addObject("PartDesign::Pad", "Pad005")
body.addObject(pad6)
pad6.Profile = sketch14
pad6.Length = 5.45

# Sketch on XZ plane
sketch15 = doc.addObject("Sketcher::SketchObject", "Sketch014")
body.addObject(sketch15)
sketch15.AttachmentSupport = (doc.XZ_Plane, [""])
sketch15.MapMode = "FlatFace"
sketch15.AttachmentOffset = App.Placement(App.Vector(0, 0, -80), App.Rotation())
sketch15.addGeometry(Part.Circle(App.Vector(-9, 18, 0), App.Vector(0, 0, 1), 7), False)
sketch15.addConstraint([
    Sketcher.Constraint("Diameter", 0, Q("14 mm")),
    Sketcher.Constraint("DistanceX", 0, 3, -1, 1, Q("9 mm")),
    Sketcher.Constraint("DistanceY", -1, 1, 0, 3, Q("18.3627 mm")),
])
pocket9 = doc.addObject("PartDesign::Pocket", "Pocket008")
body.addObject(pocket9)
pocket9.Profile = sketch15
pocket9.Length = 17.8
pocket9.Reversed = True

# Sketch on XZ plane
sketch16 = doc.addObject("Sketcher::SketchObject", "Sketch015")
body.addObject(sketch16)
sketch16.AttachmentSupport = (doc.XZ_Plane, [""])
sketch16.MapMode = "FlatFace"
sketch16.AttachmentOffset = App.Placement(App.Vector(0, 0, -24), App.Rotation())
sketch16.addGeometry(Part.Circle(App.Vector(-9, 18.4, 0), App.Vector(0, 0, 1), 4), False)
sketch16.addConstraint([
    Sketcher.Constraint("Diameter", 0, Q("8 mm")),
    Sketcher.Constraint("DistanceX", 0, 3, -1, 1, Q("9 mm")),
    Sketcher.Constraint("DistanceY", -1, 1, 0, 3, Q("18.3627 mm")),
])
pad7 = doc.addObject("PartDesign::Pad", "Pad006")
body.addObject(pad7)
pad7.Profile = sketch16
pad7.Length = 24

# Sketch on XZ plane
sketch17 = doc.addObject("Sketcher::SketchObject", "Sketch016")
body.addObject(sketch17)
sketch17.AttachmentSupport = (doc.XZ_Plane, [""])
sketch17.MapMode = "FlatFace"
sketch17.AttachmentOffset = App.Placement(App.Vector(0, 0, -80), App.Rotation())
sketch17.addGeometry(Part.Circle(App.Vector(-22.9, 31, 0), App.Vector(0, 0, 1), 4), False)
sketch17.addConstraint([
    Sketcher.Constraint("Diameter", 0, Q("8 mm")),
    Sketcher.Constraint("DistanceX", 0, 3, -1, 1, Q("22.925 mm")),
    Sketcher.Constraint("DistanceY", -1, 1, 0, 3, Q("31.0373 mm")),
])
pad8 = doc.addObject("PartDesign::Pad", "Pad007")
body.addObject(pad8)
pad8.Profile = sketch17
pad8.Length = 24

doc.recompute()
